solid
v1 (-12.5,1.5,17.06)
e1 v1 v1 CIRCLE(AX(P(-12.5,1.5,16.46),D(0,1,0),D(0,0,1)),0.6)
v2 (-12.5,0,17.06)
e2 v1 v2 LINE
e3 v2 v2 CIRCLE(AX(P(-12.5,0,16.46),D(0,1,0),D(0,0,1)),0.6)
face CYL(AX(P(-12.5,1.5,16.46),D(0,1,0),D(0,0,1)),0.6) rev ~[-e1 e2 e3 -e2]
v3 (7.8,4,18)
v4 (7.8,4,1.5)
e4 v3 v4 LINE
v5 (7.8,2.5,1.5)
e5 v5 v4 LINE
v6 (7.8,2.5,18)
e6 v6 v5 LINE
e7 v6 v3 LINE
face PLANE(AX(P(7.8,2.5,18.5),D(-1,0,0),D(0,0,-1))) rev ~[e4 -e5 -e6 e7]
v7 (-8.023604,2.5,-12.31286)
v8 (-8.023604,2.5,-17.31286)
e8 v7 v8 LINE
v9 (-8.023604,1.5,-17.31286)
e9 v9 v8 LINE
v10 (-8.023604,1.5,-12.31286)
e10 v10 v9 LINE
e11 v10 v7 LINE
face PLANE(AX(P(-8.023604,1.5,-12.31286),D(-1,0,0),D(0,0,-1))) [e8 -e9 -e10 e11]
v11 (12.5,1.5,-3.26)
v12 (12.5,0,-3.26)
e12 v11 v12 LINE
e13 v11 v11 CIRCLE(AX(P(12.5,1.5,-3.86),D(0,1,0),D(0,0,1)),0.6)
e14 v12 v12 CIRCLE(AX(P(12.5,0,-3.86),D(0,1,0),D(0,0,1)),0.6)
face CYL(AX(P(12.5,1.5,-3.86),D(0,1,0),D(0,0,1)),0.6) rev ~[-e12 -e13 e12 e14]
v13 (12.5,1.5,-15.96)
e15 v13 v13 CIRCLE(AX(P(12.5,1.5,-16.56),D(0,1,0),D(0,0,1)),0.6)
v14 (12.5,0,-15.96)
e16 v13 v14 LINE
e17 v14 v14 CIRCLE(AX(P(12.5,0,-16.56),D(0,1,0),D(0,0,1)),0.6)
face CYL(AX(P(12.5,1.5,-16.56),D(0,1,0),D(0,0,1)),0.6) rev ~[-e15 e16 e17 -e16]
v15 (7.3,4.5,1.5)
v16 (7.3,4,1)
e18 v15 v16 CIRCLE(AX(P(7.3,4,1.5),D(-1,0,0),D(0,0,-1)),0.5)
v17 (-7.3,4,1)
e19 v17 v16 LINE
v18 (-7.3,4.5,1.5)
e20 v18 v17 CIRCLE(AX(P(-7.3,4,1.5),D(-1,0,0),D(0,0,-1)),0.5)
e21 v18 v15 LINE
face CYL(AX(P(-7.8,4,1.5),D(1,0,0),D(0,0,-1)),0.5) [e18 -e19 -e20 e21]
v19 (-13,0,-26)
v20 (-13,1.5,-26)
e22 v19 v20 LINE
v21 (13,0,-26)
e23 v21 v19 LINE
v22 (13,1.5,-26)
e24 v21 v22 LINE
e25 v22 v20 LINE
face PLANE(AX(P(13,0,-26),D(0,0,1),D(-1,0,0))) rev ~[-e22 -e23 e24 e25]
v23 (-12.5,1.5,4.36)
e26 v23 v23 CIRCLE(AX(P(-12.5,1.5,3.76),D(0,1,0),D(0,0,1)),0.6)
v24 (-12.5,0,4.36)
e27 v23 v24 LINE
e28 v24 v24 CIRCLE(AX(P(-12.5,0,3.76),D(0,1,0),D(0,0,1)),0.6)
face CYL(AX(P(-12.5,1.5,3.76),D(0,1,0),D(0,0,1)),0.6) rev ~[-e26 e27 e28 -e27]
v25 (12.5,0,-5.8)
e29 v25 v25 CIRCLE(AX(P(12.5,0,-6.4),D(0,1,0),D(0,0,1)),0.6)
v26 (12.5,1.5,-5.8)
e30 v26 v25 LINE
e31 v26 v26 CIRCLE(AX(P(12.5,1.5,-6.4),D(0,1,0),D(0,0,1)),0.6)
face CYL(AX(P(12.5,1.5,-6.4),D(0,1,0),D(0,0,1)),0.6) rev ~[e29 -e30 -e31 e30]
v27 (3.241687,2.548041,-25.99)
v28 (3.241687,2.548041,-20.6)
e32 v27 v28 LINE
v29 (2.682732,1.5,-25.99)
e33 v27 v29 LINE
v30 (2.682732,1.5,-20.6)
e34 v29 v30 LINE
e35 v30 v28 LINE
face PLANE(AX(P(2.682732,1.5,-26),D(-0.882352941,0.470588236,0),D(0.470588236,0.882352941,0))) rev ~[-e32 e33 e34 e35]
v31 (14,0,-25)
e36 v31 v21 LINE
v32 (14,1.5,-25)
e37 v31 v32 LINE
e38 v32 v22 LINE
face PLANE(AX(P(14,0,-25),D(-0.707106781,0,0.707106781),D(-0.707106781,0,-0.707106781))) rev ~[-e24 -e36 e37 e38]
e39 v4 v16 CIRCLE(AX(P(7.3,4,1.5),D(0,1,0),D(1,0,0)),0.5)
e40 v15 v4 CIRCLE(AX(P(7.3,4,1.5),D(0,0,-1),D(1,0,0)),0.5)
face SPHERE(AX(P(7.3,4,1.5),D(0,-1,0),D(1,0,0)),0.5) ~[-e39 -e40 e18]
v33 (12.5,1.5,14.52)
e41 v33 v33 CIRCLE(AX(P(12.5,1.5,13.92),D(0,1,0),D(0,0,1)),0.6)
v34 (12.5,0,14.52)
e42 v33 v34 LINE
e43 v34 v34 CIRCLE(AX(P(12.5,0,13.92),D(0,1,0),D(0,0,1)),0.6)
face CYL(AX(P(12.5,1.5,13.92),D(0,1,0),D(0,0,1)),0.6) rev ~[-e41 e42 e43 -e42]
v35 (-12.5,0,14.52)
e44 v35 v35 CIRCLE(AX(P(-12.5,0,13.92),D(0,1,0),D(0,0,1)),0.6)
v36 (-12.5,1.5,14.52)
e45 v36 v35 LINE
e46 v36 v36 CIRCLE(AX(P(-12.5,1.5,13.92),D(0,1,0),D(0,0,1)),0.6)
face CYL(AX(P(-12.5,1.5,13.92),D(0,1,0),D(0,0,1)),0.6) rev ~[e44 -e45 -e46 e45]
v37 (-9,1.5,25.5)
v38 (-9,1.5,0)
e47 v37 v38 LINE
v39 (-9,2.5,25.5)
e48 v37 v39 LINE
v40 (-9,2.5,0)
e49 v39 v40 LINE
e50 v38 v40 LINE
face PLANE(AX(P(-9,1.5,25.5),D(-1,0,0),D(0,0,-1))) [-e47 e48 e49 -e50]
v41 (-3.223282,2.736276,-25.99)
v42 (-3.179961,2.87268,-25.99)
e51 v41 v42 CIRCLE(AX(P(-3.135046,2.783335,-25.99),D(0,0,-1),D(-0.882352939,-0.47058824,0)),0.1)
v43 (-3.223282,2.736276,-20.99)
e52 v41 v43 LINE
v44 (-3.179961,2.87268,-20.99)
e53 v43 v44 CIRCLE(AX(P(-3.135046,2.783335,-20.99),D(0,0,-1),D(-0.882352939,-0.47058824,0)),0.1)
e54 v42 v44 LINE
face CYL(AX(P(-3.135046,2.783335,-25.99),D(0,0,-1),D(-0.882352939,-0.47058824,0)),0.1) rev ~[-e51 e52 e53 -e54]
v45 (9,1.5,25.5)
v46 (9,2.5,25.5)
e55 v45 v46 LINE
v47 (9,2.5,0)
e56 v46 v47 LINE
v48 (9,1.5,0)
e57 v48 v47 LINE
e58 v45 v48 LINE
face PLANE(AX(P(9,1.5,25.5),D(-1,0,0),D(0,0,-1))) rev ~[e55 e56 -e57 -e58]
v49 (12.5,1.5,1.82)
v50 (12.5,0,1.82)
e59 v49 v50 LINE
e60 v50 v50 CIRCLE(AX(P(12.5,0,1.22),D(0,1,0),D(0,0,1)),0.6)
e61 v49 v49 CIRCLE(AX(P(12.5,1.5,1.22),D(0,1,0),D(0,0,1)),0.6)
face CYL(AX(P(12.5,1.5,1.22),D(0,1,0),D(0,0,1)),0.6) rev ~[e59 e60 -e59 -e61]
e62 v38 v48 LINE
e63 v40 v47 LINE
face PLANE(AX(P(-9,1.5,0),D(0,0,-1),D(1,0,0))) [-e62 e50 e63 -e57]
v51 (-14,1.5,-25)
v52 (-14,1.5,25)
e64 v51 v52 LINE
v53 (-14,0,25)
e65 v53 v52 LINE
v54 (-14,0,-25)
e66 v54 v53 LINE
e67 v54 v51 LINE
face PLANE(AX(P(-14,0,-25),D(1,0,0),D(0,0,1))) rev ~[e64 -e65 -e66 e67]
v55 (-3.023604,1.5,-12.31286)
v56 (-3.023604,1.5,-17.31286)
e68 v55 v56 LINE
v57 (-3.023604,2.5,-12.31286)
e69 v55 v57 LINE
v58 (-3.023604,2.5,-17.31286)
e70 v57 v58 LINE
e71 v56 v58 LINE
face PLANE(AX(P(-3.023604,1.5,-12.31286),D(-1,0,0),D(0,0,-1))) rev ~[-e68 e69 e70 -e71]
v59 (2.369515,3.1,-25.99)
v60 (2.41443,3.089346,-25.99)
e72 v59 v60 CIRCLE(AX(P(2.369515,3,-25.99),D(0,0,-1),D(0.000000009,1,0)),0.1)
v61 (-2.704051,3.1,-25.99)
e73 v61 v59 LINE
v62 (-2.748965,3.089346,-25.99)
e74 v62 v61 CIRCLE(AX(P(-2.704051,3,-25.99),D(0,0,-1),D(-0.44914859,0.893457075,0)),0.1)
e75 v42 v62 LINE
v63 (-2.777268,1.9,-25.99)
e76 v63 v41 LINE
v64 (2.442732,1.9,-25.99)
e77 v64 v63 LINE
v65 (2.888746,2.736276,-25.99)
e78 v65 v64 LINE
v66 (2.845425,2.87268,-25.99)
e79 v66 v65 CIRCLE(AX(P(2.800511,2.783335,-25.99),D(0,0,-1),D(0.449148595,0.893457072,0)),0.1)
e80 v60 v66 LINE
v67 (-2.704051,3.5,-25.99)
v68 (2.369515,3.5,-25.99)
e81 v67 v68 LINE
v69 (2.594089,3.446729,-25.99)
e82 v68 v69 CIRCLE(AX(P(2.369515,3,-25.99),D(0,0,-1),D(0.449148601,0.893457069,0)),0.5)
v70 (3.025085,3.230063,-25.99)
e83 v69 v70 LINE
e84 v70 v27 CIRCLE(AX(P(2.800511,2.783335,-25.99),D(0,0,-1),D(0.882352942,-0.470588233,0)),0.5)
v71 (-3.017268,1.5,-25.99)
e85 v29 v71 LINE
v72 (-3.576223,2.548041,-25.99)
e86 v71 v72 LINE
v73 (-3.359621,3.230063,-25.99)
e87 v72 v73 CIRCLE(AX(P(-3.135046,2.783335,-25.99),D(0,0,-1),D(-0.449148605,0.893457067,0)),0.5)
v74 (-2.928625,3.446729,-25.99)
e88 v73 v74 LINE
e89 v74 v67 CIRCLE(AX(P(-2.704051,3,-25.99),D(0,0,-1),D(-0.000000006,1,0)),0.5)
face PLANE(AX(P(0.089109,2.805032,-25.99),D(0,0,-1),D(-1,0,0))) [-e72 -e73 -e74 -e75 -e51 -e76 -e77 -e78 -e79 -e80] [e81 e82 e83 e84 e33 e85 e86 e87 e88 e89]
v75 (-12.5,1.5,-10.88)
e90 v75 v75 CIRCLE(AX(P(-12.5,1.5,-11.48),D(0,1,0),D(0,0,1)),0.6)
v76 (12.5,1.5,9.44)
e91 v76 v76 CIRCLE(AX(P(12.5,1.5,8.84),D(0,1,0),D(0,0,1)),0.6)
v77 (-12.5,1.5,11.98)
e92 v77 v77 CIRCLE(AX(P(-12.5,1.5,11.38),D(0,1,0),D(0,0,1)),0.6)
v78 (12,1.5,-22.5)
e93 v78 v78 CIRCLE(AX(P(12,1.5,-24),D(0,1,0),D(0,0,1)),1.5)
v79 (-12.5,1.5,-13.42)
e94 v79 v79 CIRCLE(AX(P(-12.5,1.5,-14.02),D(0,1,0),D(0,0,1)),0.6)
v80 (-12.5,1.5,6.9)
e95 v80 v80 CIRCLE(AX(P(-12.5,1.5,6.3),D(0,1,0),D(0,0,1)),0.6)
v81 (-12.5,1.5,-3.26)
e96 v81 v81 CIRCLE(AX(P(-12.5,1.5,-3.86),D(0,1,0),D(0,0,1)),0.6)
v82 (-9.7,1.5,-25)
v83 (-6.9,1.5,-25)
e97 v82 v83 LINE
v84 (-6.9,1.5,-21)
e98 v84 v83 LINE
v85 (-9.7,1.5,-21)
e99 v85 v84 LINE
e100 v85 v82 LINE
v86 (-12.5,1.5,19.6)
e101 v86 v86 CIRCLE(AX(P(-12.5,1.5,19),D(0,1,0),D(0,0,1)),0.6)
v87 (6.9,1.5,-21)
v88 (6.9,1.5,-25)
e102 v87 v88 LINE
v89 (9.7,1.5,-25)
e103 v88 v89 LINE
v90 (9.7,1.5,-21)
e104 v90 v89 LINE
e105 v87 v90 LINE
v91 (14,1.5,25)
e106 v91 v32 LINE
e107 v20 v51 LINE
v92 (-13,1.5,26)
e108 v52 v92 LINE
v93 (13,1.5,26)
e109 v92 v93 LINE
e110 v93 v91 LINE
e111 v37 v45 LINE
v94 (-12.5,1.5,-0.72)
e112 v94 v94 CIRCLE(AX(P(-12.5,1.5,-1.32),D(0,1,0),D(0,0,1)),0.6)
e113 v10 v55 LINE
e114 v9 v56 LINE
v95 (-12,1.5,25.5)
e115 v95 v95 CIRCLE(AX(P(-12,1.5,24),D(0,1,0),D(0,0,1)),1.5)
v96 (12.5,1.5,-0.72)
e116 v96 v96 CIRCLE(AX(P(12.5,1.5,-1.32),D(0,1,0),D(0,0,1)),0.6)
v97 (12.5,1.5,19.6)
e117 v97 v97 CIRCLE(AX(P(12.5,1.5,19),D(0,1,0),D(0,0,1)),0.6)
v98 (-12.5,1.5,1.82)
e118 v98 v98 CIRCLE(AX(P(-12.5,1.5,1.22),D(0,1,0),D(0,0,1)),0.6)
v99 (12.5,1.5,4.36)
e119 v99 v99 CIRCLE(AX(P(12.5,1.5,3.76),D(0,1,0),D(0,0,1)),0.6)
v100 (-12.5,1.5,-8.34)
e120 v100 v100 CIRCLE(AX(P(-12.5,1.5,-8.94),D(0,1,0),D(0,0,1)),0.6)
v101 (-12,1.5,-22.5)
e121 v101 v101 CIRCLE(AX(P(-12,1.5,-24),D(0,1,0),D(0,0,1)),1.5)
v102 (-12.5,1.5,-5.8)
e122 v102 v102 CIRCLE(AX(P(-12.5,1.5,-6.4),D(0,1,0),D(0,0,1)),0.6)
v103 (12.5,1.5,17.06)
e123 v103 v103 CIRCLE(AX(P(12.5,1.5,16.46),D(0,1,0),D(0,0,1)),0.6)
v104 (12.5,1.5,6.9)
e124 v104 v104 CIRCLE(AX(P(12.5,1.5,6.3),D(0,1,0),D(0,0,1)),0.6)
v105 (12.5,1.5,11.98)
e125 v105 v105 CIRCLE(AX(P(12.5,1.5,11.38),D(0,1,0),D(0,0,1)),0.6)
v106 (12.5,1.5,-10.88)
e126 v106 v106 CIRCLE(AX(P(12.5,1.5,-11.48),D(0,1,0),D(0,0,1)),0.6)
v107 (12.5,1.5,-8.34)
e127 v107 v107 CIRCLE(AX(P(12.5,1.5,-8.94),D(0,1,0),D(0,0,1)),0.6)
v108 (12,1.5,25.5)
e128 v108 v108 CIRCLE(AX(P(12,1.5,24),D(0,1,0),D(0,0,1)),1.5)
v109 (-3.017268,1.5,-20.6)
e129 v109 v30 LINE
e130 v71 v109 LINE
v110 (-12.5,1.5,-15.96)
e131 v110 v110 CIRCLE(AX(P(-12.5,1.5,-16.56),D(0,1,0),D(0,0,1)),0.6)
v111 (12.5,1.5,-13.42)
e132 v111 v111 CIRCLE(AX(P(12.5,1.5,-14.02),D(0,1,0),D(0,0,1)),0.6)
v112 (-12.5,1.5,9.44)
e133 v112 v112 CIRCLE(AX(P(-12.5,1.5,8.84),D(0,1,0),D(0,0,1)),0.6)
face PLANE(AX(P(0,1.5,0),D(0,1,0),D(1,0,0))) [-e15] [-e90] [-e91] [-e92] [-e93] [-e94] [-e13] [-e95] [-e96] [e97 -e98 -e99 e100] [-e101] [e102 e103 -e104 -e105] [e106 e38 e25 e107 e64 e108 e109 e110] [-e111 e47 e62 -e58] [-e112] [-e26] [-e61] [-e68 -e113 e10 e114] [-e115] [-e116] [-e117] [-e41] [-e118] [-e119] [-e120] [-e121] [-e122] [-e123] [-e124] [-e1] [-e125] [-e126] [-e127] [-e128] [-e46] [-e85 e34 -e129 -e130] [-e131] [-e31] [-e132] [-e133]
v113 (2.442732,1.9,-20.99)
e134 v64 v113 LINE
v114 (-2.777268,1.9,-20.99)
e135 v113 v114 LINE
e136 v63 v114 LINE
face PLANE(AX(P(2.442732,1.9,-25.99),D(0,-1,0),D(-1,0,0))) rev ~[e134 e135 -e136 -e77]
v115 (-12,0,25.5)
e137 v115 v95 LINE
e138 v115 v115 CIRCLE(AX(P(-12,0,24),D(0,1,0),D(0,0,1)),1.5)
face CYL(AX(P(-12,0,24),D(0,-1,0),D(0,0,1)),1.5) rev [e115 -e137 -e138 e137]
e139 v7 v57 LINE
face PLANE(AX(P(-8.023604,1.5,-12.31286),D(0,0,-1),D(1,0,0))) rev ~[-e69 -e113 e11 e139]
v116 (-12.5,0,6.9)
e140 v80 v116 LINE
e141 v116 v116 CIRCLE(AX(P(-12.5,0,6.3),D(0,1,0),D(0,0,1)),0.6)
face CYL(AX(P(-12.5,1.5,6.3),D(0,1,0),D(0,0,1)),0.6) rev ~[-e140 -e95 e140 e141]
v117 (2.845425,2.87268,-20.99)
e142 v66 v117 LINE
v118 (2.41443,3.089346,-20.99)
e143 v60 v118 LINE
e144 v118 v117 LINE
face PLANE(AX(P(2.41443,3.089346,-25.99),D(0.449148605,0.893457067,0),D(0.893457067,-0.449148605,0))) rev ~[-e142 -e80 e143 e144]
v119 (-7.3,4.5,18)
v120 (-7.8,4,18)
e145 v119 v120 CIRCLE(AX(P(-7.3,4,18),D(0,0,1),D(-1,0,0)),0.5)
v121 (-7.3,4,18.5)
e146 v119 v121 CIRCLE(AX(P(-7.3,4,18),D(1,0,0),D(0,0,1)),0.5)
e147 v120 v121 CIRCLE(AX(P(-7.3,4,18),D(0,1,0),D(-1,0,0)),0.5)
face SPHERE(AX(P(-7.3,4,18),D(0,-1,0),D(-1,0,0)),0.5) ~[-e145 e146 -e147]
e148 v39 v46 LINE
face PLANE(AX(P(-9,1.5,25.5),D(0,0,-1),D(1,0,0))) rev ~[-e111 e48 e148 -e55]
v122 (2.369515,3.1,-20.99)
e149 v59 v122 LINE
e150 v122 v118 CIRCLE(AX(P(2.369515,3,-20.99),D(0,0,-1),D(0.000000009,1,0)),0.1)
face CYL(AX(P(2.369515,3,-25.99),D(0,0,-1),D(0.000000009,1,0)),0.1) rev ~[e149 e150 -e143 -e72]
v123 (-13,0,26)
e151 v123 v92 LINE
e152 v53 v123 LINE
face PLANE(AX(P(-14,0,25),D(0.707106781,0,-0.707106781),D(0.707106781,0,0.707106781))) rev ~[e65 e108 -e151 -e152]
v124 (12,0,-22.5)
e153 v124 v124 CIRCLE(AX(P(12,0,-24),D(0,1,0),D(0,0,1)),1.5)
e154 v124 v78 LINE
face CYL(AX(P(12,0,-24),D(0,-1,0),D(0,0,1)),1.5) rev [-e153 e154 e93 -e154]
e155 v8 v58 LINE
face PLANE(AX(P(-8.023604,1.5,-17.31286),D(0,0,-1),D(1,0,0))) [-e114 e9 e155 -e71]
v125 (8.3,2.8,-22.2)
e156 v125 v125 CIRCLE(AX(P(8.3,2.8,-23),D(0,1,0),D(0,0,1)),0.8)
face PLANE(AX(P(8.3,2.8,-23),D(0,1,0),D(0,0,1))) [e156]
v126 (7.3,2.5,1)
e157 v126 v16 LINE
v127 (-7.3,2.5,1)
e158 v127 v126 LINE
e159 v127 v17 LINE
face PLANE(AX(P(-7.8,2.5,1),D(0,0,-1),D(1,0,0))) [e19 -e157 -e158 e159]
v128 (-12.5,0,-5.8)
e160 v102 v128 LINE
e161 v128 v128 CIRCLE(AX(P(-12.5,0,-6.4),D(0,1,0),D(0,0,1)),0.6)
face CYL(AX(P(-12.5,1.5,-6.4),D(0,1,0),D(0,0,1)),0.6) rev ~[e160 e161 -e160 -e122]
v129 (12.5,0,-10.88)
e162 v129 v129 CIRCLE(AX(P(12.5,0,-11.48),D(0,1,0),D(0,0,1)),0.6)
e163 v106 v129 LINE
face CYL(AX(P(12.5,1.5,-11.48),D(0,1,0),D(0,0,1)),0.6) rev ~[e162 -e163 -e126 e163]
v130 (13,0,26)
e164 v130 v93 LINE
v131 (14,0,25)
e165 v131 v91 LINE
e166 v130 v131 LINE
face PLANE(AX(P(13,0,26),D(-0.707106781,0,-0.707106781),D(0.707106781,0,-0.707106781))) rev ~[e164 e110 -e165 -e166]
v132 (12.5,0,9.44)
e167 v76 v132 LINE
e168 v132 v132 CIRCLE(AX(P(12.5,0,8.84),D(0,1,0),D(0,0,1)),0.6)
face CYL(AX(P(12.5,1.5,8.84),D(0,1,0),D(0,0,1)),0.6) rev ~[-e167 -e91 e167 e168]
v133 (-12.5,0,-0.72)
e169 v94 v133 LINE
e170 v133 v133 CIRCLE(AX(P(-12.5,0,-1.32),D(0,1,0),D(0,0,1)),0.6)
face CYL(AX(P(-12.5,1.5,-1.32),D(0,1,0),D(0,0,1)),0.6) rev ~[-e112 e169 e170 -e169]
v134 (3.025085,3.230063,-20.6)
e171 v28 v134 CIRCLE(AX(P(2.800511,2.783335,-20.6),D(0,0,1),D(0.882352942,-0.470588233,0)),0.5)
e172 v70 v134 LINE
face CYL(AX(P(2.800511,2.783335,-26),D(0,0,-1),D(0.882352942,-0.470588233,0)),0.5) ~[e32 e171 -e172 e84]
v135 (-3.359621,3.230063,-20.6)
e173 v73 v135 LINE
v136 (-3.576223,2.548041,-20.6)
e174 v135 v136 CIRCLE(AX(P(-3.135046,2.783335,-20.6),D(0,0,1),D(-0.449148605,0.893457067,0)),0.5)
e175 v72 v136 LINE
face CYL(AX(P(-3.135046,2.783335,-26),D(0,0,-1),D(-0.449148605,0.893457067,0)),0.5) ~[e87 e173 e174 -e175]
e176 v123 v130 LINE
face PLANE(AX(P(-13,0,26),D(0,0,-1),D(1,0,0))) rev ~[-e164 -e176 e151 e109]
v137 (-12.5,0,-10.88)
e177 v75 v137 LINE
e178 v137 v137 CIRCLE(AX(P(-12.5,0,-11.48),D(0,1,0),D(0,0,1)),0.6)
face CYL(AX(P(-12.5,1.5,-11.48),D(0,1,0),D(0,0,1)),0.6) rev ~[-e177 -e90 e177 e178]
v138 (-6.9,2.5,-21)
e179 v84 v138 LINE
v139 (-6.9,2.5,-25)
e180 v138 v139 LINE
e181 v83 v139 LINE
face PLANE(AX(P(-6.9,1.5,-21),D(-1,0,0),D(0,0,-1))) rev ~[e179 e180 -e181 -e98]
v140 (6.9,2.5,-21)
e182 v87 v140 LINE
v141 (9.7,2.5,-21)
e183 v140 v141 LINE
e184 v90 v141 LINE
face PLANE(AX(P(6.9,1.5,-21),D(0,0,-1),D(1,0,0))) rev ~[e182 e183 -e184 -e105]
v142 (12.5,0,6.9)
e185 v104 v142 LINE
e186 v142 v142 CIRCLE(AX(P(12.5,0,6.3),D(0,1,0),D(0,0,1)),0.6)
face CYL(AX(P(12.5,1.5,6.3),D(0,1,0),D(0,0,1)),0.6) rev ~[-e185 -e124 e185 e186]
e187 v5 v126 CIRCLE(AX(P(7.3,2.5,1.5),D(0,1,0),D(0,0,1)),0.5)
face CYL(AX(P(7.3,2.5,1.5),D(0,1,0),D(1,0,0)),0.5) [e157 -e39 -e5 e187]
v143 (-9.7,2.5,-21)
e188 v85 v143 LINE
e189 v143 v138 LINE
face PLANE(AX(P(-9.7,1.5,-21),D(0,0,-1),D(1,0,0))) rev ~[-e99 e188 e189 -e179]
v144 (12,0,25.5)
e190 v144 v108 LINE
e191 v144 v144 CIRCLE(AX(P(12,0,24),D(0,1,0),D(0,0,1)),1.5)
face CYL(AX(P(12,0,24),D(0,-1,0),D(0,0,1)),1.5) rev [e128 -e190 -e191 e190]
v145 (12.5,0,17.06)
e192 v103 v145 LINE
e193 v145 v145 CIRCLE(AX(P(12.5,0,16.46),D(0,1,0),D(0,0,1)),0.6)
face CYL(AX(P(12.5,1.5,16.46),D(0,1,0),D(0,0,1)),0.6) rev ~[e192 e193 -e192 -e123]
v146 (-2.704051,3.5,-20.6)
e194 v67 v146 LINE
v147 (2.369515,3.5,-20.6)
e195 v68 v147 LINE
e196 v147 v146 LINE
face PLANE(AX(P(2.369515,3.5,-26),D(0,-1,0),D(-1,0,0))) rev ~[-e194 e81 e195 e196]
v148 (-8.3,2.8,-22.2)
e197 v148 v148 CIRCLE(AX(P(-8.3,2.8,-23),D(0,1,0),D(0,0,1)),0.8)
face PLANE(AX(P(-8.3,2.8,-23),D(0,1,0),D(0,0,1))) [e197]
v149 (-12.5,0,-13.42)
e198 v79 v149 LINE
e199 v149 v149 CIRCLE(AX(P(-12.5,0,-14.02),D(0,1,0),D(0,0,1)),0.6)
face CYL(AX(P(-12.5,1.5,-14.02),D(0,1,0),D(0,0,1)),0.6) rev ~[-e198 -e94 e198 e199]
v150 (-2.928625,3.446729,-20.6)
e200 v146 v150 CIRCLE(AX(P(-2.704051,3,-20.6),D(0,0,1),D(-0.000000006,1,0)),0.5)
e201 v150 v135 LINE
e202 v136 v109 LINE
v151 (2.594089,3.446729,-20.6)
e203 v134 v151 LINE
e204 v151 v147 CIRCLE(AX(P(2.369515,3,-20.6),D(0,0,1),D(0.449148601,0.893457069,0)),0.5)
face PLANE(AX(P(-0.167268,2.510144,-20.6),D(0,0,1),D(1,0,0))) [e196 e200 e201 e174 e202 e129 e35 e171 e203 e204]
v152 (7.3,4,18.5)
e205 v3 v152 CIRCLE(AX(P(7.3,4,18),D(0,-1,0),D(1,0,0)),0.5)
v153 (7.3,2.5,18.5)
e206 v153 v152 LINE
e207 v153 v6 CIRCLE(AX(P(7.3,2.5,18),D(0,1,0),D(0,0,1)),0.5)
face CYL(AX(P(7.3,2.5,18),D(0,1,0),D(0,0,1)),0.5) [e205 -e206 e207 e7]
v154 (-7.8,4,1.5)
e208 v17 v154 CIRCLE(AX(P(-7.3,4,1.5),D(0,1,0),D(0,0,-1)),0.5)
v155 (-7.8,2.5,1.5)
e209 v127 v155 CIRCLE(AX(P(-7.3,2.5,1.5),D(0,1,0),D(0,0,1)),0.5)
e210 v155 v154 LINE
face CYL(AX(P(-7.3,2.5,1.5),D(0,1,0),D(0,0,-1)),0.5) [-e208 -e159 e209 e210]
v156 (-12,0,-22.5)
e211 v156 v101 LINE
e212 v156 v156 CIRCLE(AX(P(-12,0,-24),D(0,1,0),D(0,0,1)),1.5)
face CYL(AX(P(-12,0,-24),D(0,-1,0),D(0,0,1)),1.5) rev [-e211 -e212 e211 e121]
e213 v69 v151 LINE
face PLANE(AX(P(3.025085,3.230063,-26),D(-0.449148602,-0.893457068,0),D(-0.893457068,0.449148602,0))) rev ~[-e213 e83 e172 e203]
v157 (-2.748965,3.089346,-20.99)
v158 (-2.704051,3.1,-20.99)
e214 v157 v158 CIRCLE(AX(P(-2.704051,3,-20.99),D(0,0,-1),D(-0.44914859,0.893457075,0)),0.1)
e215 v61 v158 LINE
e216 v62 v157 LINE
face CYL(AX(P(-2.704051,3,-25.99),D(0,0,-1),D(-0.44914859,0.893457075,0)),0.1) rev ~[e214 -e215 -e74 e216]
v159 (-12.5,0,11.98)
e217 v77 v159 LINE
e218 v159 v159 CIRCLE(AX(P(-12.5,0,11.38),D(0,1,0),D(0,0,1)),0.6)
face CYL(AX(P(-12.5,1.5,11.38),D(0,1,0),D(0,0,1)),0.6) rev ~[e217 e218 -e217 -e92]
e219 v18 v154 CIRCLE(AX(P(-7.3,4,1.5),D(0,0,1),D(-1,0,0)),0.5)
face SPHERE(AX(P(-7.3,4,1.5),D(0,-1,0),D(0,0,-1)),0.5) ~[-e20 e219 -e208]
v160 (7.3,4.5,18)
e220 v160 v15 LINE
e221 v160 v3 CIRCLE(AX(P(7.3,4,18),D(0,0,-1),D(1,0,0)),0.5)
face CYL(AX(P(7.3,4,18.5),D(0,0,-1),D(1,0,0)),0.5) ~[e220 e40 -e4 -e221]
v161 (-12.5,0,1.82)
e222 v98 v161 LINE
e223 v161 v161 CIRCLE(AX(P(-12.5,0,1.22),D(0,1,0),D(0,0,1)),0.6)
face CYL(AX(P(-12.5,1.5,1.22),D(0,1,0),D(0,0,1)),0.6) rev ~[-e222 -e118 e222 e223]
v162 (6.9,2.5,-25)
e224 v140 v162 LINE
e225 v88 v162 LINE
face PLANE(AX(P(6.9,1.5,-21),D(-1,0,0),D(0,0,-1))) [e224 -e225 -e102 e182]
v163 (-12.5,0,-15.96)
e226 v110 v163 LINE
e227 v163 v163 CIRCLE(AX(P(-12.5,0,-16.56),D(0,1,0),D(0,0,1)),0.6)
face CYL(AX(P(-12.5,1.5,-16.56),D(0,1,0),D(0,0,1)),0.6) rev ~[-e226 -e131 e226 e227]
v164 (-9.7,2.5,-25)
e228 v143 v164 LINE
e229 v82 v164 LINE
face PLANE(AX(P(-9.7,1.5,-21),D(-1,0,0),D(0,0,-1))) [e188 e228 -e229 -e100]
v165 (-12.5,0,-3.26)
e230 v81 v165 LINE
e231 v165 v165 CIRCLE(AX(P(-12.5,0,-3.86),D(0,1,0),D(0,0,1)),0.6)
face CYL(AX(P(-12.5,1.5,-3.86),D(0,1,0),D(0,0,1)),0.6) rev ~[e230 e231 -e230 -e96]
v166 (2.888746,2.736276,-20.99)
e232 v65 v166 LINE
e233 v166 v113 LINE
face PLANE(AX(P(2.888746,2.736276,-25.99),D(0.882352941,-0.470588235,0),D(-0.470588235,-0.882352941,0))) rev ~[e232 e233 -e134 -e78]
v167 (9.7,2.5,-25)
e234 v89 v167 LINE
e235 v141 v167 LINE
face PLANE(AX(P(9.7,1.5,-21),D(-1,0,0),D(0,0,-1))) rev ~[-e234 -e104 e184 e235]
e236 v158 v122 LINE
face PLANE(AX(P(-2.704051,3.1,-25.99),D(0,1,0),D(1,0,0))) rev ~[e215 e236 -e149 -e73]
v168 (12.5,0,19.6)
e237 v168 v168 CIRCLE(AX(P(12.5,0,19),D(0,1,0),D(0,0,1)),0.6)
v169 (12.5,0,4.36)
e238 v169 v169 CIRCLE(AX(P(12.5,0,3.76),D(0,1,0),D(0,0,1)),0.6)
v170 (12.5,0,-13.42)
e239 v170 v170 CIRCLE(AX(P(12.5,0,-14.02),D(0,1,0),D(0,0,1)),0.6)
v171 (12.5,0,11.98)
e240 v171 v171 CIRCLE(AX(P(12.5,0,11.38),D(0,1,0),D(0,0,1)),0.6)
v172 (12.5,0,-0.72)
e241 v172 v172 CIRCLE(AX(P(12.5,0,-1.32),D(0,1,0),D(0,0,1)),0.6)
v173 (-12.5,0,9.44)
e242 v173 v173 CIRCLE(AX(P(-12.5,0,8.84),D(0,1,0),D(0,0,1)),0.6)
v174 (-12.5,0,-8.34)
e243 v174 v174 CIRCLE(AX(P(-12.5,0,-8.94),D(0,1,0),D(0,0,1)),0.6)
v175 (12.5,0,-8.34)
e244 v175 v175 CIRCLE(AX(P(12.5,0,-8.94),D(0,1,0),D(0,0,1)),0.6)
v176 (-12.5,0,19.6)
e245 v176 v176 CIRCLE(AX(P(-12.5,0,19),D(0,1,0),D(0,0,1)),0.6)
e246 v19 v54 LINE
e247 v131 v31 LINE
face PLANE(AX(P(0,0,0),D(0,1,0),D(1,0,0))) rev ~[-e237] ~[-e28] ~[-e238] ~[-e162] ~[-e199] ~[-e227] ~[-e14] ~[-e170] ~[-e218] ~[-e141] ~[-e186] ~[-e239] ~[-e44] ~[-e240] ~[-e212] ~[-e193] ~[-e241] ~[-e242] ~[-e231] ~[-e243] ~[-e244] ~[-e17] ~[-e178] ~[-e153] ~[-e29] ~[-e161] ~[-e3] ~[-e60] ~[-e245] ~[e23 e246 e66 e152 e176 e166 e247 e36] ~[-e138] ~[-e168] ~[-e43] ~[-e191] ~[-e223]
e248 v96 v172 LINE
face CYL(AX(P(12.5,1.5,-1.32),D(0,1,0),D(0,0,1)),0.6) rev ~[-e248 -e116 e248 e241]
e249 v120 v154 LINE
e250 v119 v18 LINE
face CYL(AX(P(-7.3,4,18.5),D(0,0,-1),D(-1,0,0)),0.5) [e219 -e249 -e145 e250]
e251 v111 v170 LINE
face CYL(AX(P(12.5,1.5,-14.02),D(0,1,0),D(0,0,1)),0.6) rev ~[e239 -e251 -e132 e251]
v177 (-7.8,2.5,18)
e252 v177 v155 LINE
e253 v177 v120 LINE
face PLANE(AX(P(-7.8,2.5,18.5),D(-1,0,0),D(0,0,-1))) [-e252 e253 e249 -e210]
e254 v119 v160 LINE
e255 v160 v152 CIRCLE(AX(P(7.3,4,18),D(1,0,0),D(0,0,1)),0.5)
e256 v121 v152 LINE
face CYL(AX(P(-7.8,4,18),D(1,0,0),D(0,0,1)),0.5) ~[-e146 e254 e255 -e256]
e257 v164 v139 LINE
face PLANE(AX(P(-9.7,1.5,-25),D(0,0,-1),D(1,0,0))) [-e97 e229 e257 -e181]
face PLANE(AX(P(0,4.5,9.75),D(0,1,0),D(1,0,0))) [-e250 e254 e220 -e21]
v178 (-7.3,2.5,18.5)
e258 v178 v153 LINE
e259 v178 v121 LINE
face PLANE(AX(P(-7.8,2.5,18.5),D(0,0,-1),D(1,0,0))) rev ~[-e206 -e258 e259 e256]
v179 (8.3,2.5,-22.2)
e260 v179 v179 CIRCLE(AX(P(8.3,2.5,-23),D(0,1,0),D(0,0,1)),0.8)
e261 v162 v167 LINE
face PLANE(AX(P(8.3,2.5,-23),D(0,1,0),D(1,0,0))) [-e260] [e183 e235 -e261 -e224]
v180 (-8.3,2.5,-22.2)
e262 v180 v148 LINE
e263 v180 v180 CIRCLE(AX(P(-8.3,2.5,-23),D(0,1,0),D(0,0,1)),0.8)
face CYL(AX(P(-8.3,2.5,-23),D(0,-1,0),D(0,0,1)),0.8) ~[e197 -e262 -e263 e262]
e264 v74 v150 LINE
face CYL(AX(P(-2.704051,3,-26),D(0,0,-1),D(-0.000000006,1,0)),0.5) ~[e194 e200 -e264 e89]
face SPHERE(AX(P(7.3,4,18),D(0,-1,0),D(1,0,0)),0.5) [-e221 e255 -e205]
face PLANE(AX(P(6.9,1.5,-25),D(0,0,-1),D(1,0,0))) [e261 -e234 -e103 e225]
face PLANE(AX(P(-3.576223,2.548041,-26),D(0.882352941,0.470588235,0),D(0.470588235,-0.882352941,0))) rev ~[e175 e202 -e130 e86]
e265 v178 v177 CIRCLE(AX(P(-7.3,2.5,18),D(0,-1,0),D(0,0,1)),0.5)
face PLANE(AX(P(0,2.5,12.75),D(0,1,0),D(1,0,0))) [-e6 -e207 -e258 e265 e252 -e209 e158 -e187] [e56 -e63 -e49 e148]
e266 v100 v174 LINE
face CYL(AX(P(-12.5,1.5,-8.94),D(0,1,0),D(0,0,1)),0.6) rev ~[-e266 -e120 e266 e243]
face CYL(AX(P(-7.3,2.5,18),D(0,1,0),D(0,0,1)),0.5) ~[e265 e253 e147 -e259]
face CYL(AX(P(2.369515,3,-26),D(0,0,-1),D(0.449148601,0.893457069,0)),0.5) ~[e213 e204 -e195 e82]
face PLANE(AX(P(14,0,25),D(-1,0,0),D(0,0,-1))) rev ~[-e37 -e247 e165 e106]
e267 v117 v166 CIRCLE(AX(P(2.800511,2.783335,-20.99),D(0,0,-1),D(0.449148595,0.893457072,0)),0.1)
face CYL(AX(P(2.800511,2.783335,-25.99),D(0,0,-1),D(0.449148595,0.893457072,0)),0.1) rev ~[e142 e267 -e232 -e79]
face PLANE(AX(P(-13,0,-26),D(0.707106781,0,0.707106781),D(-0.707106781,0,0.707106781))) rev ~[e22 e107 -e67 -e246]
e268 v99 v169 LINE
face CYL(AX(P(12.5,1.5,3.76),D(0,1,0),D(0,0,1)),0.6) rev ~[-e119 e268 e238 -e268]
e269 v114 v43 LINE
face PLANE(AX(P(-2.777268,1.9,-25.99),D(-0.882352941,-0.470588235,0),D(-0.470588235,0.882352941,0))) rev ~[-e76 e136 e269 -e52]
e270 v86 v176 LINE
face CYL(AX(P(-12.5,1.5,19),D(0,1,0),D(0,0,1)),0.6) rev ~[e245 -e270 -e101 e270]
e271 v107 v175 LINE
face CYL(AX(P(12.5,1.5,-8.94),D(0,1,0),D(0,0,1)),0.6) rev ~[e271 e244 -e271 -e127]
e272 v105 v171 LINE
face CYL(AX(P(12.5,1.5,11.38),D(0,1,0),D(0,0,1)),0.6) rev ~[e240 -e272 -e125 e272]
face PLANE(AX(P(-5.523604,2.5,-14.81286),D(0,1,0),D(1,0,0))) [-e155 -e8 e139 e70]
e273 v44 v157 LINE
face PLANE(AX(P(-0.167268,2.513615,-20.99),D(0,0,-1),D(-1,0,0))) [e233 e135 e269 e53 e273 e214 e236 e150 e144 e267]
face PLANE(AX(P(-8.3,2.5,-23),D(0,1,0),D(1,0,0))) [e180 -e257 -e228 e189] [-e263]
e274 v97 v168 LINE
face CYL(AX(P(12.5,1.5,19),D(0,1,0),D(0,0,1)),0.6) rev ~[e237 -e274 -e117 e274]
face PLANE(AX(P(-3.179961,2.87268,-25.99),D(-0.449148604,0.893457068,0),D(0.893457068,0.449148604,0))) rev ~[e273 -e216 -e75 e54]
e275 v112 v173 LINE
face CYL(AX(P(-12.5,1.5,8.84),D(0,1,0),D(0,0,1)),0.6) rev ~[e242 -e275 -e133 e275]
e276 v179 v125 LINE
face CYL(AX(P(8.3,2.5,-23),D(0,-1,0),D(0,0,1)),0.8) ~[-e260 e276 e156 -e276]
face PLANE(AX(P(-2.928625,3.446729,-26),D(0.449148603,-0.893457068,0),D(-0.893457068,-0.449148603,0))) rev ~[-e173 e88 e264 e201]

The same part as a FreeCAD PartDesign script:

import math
import FreeCAD as App
import Part
import Sketcher

V = App.Vector
Q = App.Units.Quantity


def edges_at(feature, points):
    """Names of the edges that pass closest to the given points."""
    edges = feature.Shape.Edges
    near = lambda p: min(range(len(edges)), key=lambda i: edges[i].distToShape(Part.Vertex(*p))[0])
    return sorted({f"Edge{near(p) + 1}" for p in points})

doc = App.newDocument("Part")
body = doc.addObject("PartDesign::Body", "Body")

sketch1 = body.newObject("Sketcher::SketchObject", "Sketch")
sketch1.AttachmentSupport = (doc.getObject("XZ_Plane"), [""])
sketch1.MapMode = "FlatFace"
sketch1.addGeometry([
    Part.LineSegment(V(-14, 25, 0), V(-13, 26, 0)),
    Part.LineSegment(V(-13, 26, 0), V(13, 26, 0)),
    Part.LineSegment(V(13, 26, 0), V(14, 25, 0)),
    Part.LineSegment(V(14, 25, 0), V(14, -25, 0)),
    Part.LineSegment(V(14, -25, 0), V(13, -26, 0)),
    Part.LineSegment(V(13, -26, 0), V(-13, -26, 0)),
    Part.LineSegment(V(-13, -26, 0), V(-14, -25, 0)),
    Part.LineSegment(V(-14, -25, 0), V(-14, 25, 0)),
    Part.Circle(V(-12, 24, 0), V(0, 0, 1), 1.5),
    Part.Circle(V(12, 24, 0), V(0, 0, 1), 1.5),
    Part.Circle(V(-12, -24, 0), V(0, 0, 1), 1.5),
    Part.Circle(V(12, -24, 0), V(0, 0, 1), 1.5),
], False)
sketch1.addConstraint([
    Sketcher.Constraint("Coincident", 0, 2, 1, 1),
    Sketcher.Constraint("Coincident", 1, 2, 2, 1),
    Sketcher.Constraint("Coincident", 2, 2, 3, 1),
    Sketcher.Constraint("Coincident", 3, 2, 4, 1),
    Sketcher.Constraint("Coincident", 4, 2, 5, 1),
    Sketcher.Constraint("Coincident", 5, 2, 6, 1),
    Sketcher.Constraint("Coincident", 6, 2, 7, 1),
    Sketcher.Constraint("Coincident", 7, 2, 0, 1),
    Sketcher.Constraint("Horizontal", 1),
    Sketcher.Constraint("Vertical", 3),
    Sketcher.Constraint("Horizontal", 5),
    Sketcher.Constraint("Vertical", 7),
    Sketcher.Constraint("Equal", 8, 9),
    Sketcher.Constraint("Equal", 9, 10),
    Sketcher.Constraint("Equal", 10, 11),
    Sketcher.Constraint("Symmetric", 9, 3, 10, 3, -1, 1),
    Sketcher.Constraint("Symmetric", 8, 3, 11, 3, -1, 1),
    Sketcher.Constraint("Symmetric", 0, 2, 4, 2, -1, 1),
    Sketcher.Constraint("Symmetric", 2, 2, 6, 2, -1, 1),
    Sketcher.Constraint("Symmetric", 8, 3, 9, 3, -2),
    Sketcher.Constraint("Perpendicular", 0, 2),
    Sketcher.Constraint("Perpendicular", 2, 4),
    Sketcher.Constraint("Perpendicular", 4, 6),
    Sketcher.Constraint("Horizontal", 3, 2, 6, 2),
    Sketcher.Constraint("Vertical", 1, 2, 4, 2),
    Sketcher.Constraint("Diameter", 8, Q("3 mm")),
    Sketcher.Constraint("DistanceX", 1, 1, 1, 2, Q("26 mm")),
    Sketcher.Constraint("DistanceY", 3, 2, 3, 1, Q("50 mm")),
    Sketcher.Constraint("DistanceX", 8, 3, -1, 1, Q("12 mm")),
    Sketcher.Constraint("DistanceY", -1, 1, 8, 3, Q("24 mm")),
    Sketcher.Constraint("DistanceY", -1, 1, 0, 2, Q("26 mm")),
])
pad1 = body.newObject("PartDesign::Pad", "Pad")
pad1.Profile = sketch1
pad1.Length = 1.5
pad1.Reversed = True

sketch2 = body.newObject("Sketcher::SketchObject", "Sketch001")
sketch2.AttachmentSupport = (doc.getObject("XZ_Plane"), [""])
sketch2.MapMode = "FlatFace"
sketch2.AttachmentOffset = App.Placement(V(0, 0, -1.5), App.Rotation())
sketch2.addGeometry([
    Part.LineSegment(V(-9, 0, 0), V(-9, 26, 0)),
    Part.LineSegment(V(-9, 26, 0), V(9, 26, 0)),
    Part.LineSegment(V(9, 26, 0), V(9, 0, 0)),
    Part.LineSegment(V(9, 0, 0), V(-9, 0, 0)),
], False)
sketch2.addConstraint([
    Sketcher.Constraint("Coincident", 0, 2, 1, 1),
    Sketcher.Constraint("Coincident", 1, 2, 2, 1),
    Sketcher.Constraint("Coincident", 2, 2, 3, 1),
    Sketcher.Constraint("Coincident", 3, 2, 0, 1),
    Sketcher.Constraint("Vertical", 0),
    Sketcher.Constraint("Horizontal", 1),
    Sketcher.Constraint("Vertical", 2),
    Sketcher.Constraint("Horizontal", 3),
    Sketcher.Constraint("Symmetric", 2, 2, 3, 2, -1, 1),
    Sketcher.Constraint("DistanceX", 1, 1, 1, 2, Q("18 mm")),
    Sketcher.Constraint("DistanceY", 0, 1, 0, 2, Q("25.5 mm")),
])
pad2 = body.newObject("PartDesign::Pad", "Pad001")
pad2.Profile = sketch2
pad2.Length = 1
pad2.Reversed = True

sketch3 = body.newObject("Sketcher::SketchObject", "Sketch002")
sketch3.AttachmentSupport = (doc.getObject("XZ_Plane"), [""])
sketch3.MapMode = "FlatFace"
sketch3.AttachmentOffset = App.Placement(V(0, 0, -2.5), App.Rotation())
sketch3.addGeometry([
    Part.LineSegment(V(-8, 1, 0), V(-8, 18, 0)),
    Part.LineSegment(V(-8, 18, 0), V(8, 18, 0)),
    Part.LineSegment(V(8, 18, 0), V(8, 1, 0)),
    Part.LineSegment(V(8, 1, 0), V(-8, 1, 0)),
], False)
sketch3.addConstraint([
    Sketcher.Constraint("Coincident", 0, 2, 1, 1),
    Sketcher.Constraint("Coincident", 1, 2, 2, 1),
    Sketcher.Constraint("Coincident", 2, 2, 3, 1),
    Sketcher.Constraint("Coincident", 3, 2, 0, 1),
    Sketcher.Constraint("Vertical", 0),
    Sketcher.Constraint("Horizontal", 1),
    Sketcher.Constraint("Vertical", 2),
    Sketcher.Constraint("Horizontal", 3),
    Sketcher.Constraint("DistanceX", 1, 1, 1, 2, Q("15.6 mm")),
    Sketcher.Constraint("DistanceY", 0, 1, 0, 2, Q("17.5 mm")),
    Sketcher.Constraint("DistanceY", -1, 1, 2, 2, Q("1 mm")),
    Sketcher.Constraint("DistanceX", 0, 2, -1, 1, Q("7.8 mm")),
])
pad3 = body.newObject("PartDesign::Pad", "Pad002")
pad3.Profile = sketch3
pad3.Length = 2
pad3.Reversed = True

sketch4 = body.newObject("Sketcher::SketchObject", "Sketch003")
sketch4.AttachmentSupport = (doc.getObject("XZ_Plane"), [""])
sketch4.MapMode = "FlatFace"
sketch4.AttachmentOffset = App.Placement(V(0, 0, -1.5), App.Rotation())
sketch4.addGeometry([
    Part.LineSegment(V(-8, -17.3, 0), V(-8, -12.3, 0)),
    Part.LineSegment(V(-8, -12.3, 0), V(-3, -12.3, 0)),
    Part.LineSegment(V(-3, -12.3, 0), V(-3, -17.3, 0)),
    Part.LineSegment(V(-3, -17.3, 0), V(-8, -17.3, 0)),
    Part.LineSegment(V(-9.7, -25, 0), V(-9.7, -21, 0)),
    Part.LineSegment(V(-9.7, -21, 0), V(-6.9, -21, 0)),
    Part.LineSegment(V(-6.9, -21, 0), V(-6.9, -25, 0)),
    Part.LineSegment(V(-6.9, -25, 0), V(-9.7, -25, 0)),
    Part.LineSegment(V(6.9, -25, 0), V(6.9, -21, 0)),
    Part.LineSegment(V(6.9, -21, 0), V(9.7, -21, 0)),
    Part.LineSegment(V(9.7, -21, 0), V(9.7, -25, 0)),
    Part.LineSegment(V(9.7, -25, 0), V(6.9, -25, 0)),
], False)
sketch4.addConstraint([
    Sketcher.Constraint("Coincident", 0, 2, 1, 1),
    Sketcher.Constraint("Coincident", 1, 2, 2, 1),
    Sketcher.Constraint("Coincident", 2, 2, 3, 1),
    Sketcher.Constraint("Coincident", 3, 2, 0, 1),
    Sketcher.Constraint("Coincident", 4, 2, 5, 1),
    Sketcher.Constraint("Coincident", 5, 2, 6, 1),
    Sketcher.Constraint("Coincident", 6, 2, 7, 1),
    Sketcher.Constraint("Coincident", 7, 2, 4, 1),
    Sketcher.Constraint("Coincident", 8, 2, 9, 1),
    Sketcher.Constraint("Coincident", 9, 2, 10, 1),
    Sketcher.Constraint("Coincident", 10, 2, 11, 1),
    Sketcher.Constraint("Coincident", 11, 2, 8, 1),
    Sketcher.Constraint("Vertical", 0),
    Sketcher.Constraint("Horizontal", 1),
    Sketcher.Constraint("Vertical", 2),
    Sketcher.Constraint("Horizontal", 3),
    Sketcher.Constraint("Vertical", 4),
    Sketcher.Constraint("Horizontal", 5),
    Sketcher.Constraint("Vertical", 6),
    Sketcher.Constraint("Horizontal", 7),
    Sketcher.Constraint("Vertical", 8),
    Sketcher.Constraint("Horizontal", 9),
    Sketcher.Constraint("Vertical", 10),
    Sketcher.Constraint("Horizontal", 11),
    Sketcher.Constraint("Symmetric", 5, 2, 8, 2, -2),
    Sketcher.Constraint("Symmetric", 7, 2, 10, 2, -2),
    Sketcher.Constraint("Equal", 3, 0),
    Sketcher.Constraint("DistanceX", 1, 1, 1, 2, Q("5 mm")),
    Sketcher.Constraint("DistanceY", 4, 1, 4, 2, Q("4 mm")),
    Sketcher.Constraint("DistanceX", 5, 1, 5, 2, Q("2.8 mm")),
    Sketcher.Constraint("DistanceY", 4, 2, -1, 1, Q("21 mm")),
    Sketcher.Constraint("DistanceX", 4, 2, -1, 1, Q("9.7 mm")),
    Sketcher.Constraint("DistanceY", 0, 2, -1, 1, Q("12.31286 mm")),
    Sketcher.Constraint("DistanceX", 0, 2, -1, 1, Q("8.023604 mm")),
])
pad4 = body.newObject("PartDesign::Pad", "Pad003")
pad4.Profile = sketch4
pad4.Length = 1
pad4.Reversed = True

sketch5 = body.newObject("Sketcher::SketchObject", "Sketch004")
sketch5.AttachmentSupport = (doc.getObject("XZ_Plane"), [""])
sketch5.MapMode = "FlatFace"
sketch5.AttachmentOffset = App.Placement(V(0, 0, -2.5), App.Rotation())
sketch5.addGeometry([
    Part.Circle(V(-8.3, -23, 0), V(0, 0, 1), 0.8),
    Part.Circle(V(8.3, -23, 0), V(0, 0, 1), 0.8),
], False)
sketch5.addConstraint([
    Sketcher.Constraint("Equal", 0, 1),
    Sketcher.Constraint("Symmetric", 0, 3, 1, 3, -2),
    Sketcher.Constraint("Diameter", 0, Q("1.6 mm")),
    Sketcher.Constraint("DistanceY", 0, 3, -1, 1, Q("23 mm")),
    Sketcher.Constraint("DistanceX", 0, 3, -1, 1, Q("8.3 mm")),
])
pad5 = body.newObject("PartDesign::Pad", "Pad004")
pad5.Profile = sketch5
pad5.Length = 0.3
pad5.Reversed = True

sketch6 = body.newObject("Sketcher::SketchObject", "Sketch005")
sketch6.AttachmentSupport = (doc.getObject("XY_Plane"), [""])
sketch6.MapMode = "FlatFace"
sketch6.AttachmentOffset = App.Placement(V(0, 0, -26), App.Rotation())
sketch6.addGeometry([
    Part.LineSegment(V(2.68, 1.5, 0), V(-3.02, 1.5, 0)),
    Part.LineSegment(V(-3.02, 1.5, 0), V(-3.58, 2.55, 0)),
    Part.ArcOfCircle(Part.Circle(V(-3.14, 2.78, 0), V(0, 0, 1), 0.5), math.radians(117), math.radians(208)),
    Part.LineSegment(V(-3.36, 3.23, 0), V(-2.93, 3.45, 0)),
    Part.ArcOfCircle(Part.Circle(V(-2.7, 3, 0), V(0, 0, 1), 0.5), math.radians(90), math.radians(117)),
    Part.LineSegment(V(-2.7, 3.5, 0), V(2.37, 3.5, 0)),
    Part.ArcOfCircle(Part.Circle(V(2.37, 3, 0), V(0, 0, 1), 0.5), math.radians(63), math.radians(90)),
    Part.LineSegment(V(2.59, 3.45, 0), V(3.03, 3.23, 0)),
    Part.ArcOfCircle(Part.Circle(V(2.8, 2.78, 0), V(0, 0, 1), 0.5), math.radians(-28), math.radians(63)),
    Part.LineSegment(V(3.24, 2.55, 0), V(2.68, 1.5, 0)),
], False)
sketch6.addConstraint([
    Sketcher.Constraint("Coincident", 0, 2, 1, 1),
    Sketcher.Constraint("Tangent", 1, 2, 2, 2),
    Sketcher.Constraint("Tangent", 2, 1, 3, 1),
    Sketcher.Constraint("Tangent", 3, 2, 4, 2),
    Sketcher.Constraint("Tangent", 4, 1, 5, 1),
    Sketcher.Constraint("Tangent", 5, 2, 6, 2),
    Sketcher.Constraint("Tangent", 6, 1, 7, 1),
    Sketcher.Constraint("Tangent", 7, 2, 8, 2),
    Sketcher.Constraint("Tangent", 8, 1, 9, 1),
    Sketcher.Constraint("Coincident", 9, 2, 0, 1),
    Sketcher.Constraint("Horizontal", 0),
    Sketcher.Constraint("Horizontal", 5),
    Sketcher.Constraint("Equal", 2, 4),
    Sketcher.Constraint("Equal", 4, 6),
    Sketcher.Constraint("Equal", 6, 8),
    Sketcher.Constraint("Horizontal", 2, 3, 8, 3),
    Sketcher.Constraint("Horizontal", 3, 2, 6, 1),
    Sketcher.Constraint("Horizontal", 1, 2, 8, 1),
    Sketcher.Constraint("Radius", 2, Q("0.5 mm")),
    Sketcher.Constraint("DistanceX", 0, 2, 0, 1, Q("5.7 mm")),
    Sketcher.Constraint("DistanceY", -1, 1, 4, 3, Q("3 mm")),
    Sketcher.Constraint("DistanceY", -1, 1, 0, 2, Q("1.5 mm")),
    Sketcher.Constraint("Distance", 1, Q("1.187779 mm")),
    Sketcher.Constraint("Distance", 3, Q("0.482391 mm")),
    Sketcher.Constraint("DistanceX", 5, 1, 5, 2, Q("5.073565 mm")),
    Sketcher.Constraint("DistanceX", 4, 3, -1, 1, Q("2.704051 mm")),
])
pad6 = body.newObject("PartDesign::Pad", "Pad005")
pad6.Profile = sketch6
pad6.Length = 5.4

sketch7 = body.newObject("Sketcher::SketchObject", "Sketch006")
sketch7.AttachmentSupport = (doc.getObject("XY_Plane"), [""])
sketch7.MapMode = "FlatFace"
sketch7.AttachmentOffset = App.Placement(V(0, 0, -26), App.Rotation())
sketch7.addGeometry([
    Part.LineSegment(V(3.9, 4.1, 0), V(3.9, 1.5, 0)),
    Part.LineSegment(V(3.9, 1.5, 0), V(-3.7, 1.5, 0)),
    Part.LineSegment(V(-3.7, 1.5, 0), V(-3.7, 4.1, 0)),
    Part.LineSegment(V(-3.7, 4.1, 0), V(3.9, 4.1, 0)),
], False)
sketch7.addConstraint([
    Sketcher.Constraint("Coincident", 0, 2, 1, 1),
    Sketcher.Constraint("Coincident", 1, 2, 2, 1),
    Sketcher.Constraint("Coincident", 2, 2, 3, 1),
    Sketcher.Constraint("Coincident", 3, 2, 0, 1),
    Sketcher.Constraint("Vertical", 0),
    Sketcher.Constraint("Horizontal", 1),
    Sketcher.Constraint("Vertical", 2),
    Sketcher.Constraint("Horizontal", 3),
    Sketcher.Constraint("DistanceY", -1, 1, 0, 2, Q("1.5 mm")),
    Sketcher.Constraint("DistanceX", 1, 2, 1, 1, Q("7.643028 mm")),
    Sketcher.Constraint("DistanceY", 0, 2, 0, 1, Q("2.610065 mm")),
    Sketcher.Constraint("DistanceX", -1, 1, 0, 2, Q("3.910623 mm")),
])
pocket1 = body.newObject("PartDesign::Pocket", "Pocket")
pocket1.Profile = sketch7
pocket1.Length = 0.01
pocket1.Reversed = True

sketch8 = body.newObject("Sketcher::SketchObject", "Sketch007")
sketch8.AttachmentSupport = (doc.getObject("XY_Plane"), [""])
sketch8.MapMode = "FlatFace"
sketch8.AttachmentOffset = App.Placement(V(0, 0, -25.99), App.Rotation())
sketch8.addGeometry([
    Part.LineSegment(V(-2.704, 3.1, 0), V(2.37, 3.1, 0)),
    Part.ArcOfCircle(Part.Circle(V(2.37, 3, 0), V(0, 0, 1), 0.1), math.radians(63), math.radians(90)),
    Part.LineSegment(V(2.414, 3.089, 0), V(2.845, 2.873, 0)),
    Part.ArcOfCircle(Part.Circle(V(2.801, 2.783, 0), V(0, 0, 1), 0.1), math.radians(-28), math.radians(63)),
    Part.LineSegment(V(2.889, 2.736, 0), V(2.443, 1.9, 0)),
    Part.LineSegment(V(2.443, 1.9, 0), V(-2.777, 1.9, 0)),
    Part.LineSegment(V(-2.777, 1.9, 0), V(-3.223, 2.736, 0)),
    Part.ArcOfCircle(Part.Circle(V(-3.135, 2.783, 0), V(0, 0, 1), 0.1), math.radians(117), math.radians(208)),
    Part.LineSegment(V(-3.18, 2.873, 0), V(-2.749, 3.089, 0)),
    Part.ArcOfCircle(Part.Circle(V(-2.704, 3, 0), V(0, 0, 1), 0.1), math.radians(90), math.radians(117)),
], False)
sketch8.addConstraint([
    Sketcher.Constraint("Tangent", 0, 2, 1, 2),
    Sketcher.Constraint("Tangent", 1, 1, 2, 1),
    Sketcher.Constraint("Tangent", 2, 2, 3, 2),
    Sketcher.Constraint("Tangent", 3, 1, 4, 1),
    Sketcher.Constraint("Coincident", 4, 2, 5, 1),
    Sketcher.Constraint("Coincident", 5, 2, 6, 1),
    Sketcher.Constraint("Tangent", 6, 2, 7, 2),
    Sketcher.Constraint("Tangent", 7, 1, 8, 1),
    Sketcher.Constraint("Tangent", 8, 2, 9, 2),
    Sketcher.Constraint("Tangent", 9, 1, 0, 1),
    Sketcher.Constraint("Horizontal", 0),
    Sketcher.Constraint("Horizontal", 5),
    Sketcher.Constraint("Equal", 1, 3),
    Sketcher.Constraint("Equal", 3, 7),
    Sketcher.Constraint("Equal", 7, 9),
    Sketcher.Constraint("Horizontal", 3, 3, 7, 3),
    Sketcher.Constraint("Horizontal", 3, 1, 6, 2),
    Sketcher.Constraint("Horizontal", 2, 2, 7, 1),
    Sketcher.Constraint("Radius", 1, Q("0.1 mm")),
    Sketcher.Constraint("DistanceY", -1, 1, 1, 3, Q("3 mm")),
    Sketcher.Constraint("DistanceX", 5, 2, 5, 1, Q("5.22 mm")),
    Sketcher.Constraint("DistanceY", -1, 1, 4, 2, Q("1.9 mm")),
    Sketcher.Constraint("Distance", 2, Q("0.482391 mm")),
    Sketcher.Constraint("Distance", 4, Q("0.947779 mm")),
    Sketcher.Constraint("DistanceX", 0, 1, 0, 2, Q("5.073565 mm")),
    Sketcher.Constraint("DistanceX", -1, 1, 3, 3, Q("2.800511 mm")),
])
pocket2 = body.newObject("PartDesign::Pocket", "Pocket001")
pocket2.Profile = sketch8
pocket2.Length = 5
pocket2.Reversed = True

sketch9 = body.newObject("Sketcher::SketchObject", "Sketch008")
sketch9.AttachmentSupport = (doc.getObject("XZ_Plane"), [""])
sketch9.MapMode = "FlatFace"
sketch9.AttachmentOffset = App.Placement(V(0, 0, -1.5), App.Rotation())
sketch9.addGeometry([
    Part.Circle(V(-12.5, -16.6, 0), V(0, 0, 1), 0.6),
    Part.Circle(V(-12.5, -14, 0), V(0, 0, 1), 0.6),
    Part.Circle(V(-12.5, -11.5, 0), V(0, 0, 1), 0.6),
    Part.Circle(V(-12.5, -8.9, 0), V(0, 0, 1), 0.6),
    Part.Circle(V(-12.5, -6.4, 0), V(0, 0, 1), 0.6),
    Part.Circle(V(-12.5, -3.9, 0), V(0, 0, 1), 0.6),
    Part.Circle(V(-12.5, -1.3, 0), V(0, 0, 1), 0.6),
    Part.Circle(V(-12.5, 1.2, 0), V(0, 0, 1), 0.6),
    Part.Circle(V(-12.5, 3.8, 0), V(0, 0, 1), 0.6),
    Part.Circle(V(-12.5, 6.3, 0), V(0, 0, 1), 0.6),
    Part.Circle(V(-12.5, 8.8, 0), V(0, 0, 1), 0.6),
    Part.Circle(V(-12.5, 11.4, 0), V(0, 0, 1), 0.6),
    Part.Circle(V(-12.5, 13.9, 0), V(0, 0, 1), 0.6),
    Part.Circle(V(-12.5, 16.5, 0), V(0, 0, 1), 0.6),
    Part.Circle(V(-12.5, 19, 0), V(0, 0, 1), 0.6),
    Part.Circle(V(12.5, 19, 0), V(0, 0, 1), 0.6),
    Part.Circle(V(12.5, 16.5, 0), V(0, 0, 1), 0.6),
    Part.Circle(V(12.5, 13.9, 0), V(0, 0, 1), 0.6),
    Part.Circle(V(12.5, 11.4, 0), V(0, 0, 1), 0.6),
    Part.Circle(V(12.5, 8.8, 0), V(0, 0, 1), 0.6),
    Part.Circle(V(12.5, 6.3, 0), V(0, 0, 1), 0.6),
    Part.Circle(V(12.5, 3.8, 0), V(0, 0, 1), 0.6),
    Part.Circle(V(12.5, 1.2, 0), V(0, 0, 1), 0.6),
    Part.Circle(V(12.5, -1.3, 0), V(0, 0, 1), 0.6),
    Part.Circle(V(12.5, -3.9, 0), V(0, 0, 1), 0.6),
    Part.Circle(V(12.5, -6.4, 0), V(0, 0, 1), 0.6),
    Part.Circle(V(12.5, -8.9, 0), V(0, 0, 1), 0.6),
    Part.Circle(V(12.5, -11.5, 0), V(0, 0, 1), 0.6),
    Part.Circle(V(12.5, -14, 0), V(0, 0, 1), 0.6),
    Part.Circle(V(12.5, -16.6, 0), V(0, 0, 1), 0.6),
], False)
sketch9.addConstraint([
    Sketcher.Constraint("Equal", 0, 1),
    Sketcher.Constraint("Equal", 1, 2),
    Sketcher.Constraint("Equal", 2, 3),
    Sketcher.Constraint("Equal", 3, 4),
    Sketcher.Constraint("Equal", 4, 5),
    Sketcher.Constraint("Equal", 5, 6),
    Sketcher.Constraint("Equal", 6, 7),
    Sketcher.Constraint("Equal", 7, 8),
    Sketcher.Constraint("Equal", 8, 9),
    Sketcher.Constraint("Equal", 9, 10),
    Sketcher.Constraint("Equal", 10, 11),
    Sketcher.Constraint("Equal", 11, 12),
    Sketcher.Constraint("Equal", 12, 13),
    Sketcher.Constraint("Equal", 13, 14),
    Sketcher.Constraint("Equal", 14, 15),
    Sketcher.Constraint("Equal", 15, 16),
    Sketcher.Constraint("Equal", 16, 17),
    Sketcher.Constraint("Equal", 17, 18),
    Sketcher.Constraint("Equal", 18, 19),
    Sketcher.Constraint("Equal", 19, 20),
    Sketcher.Constraint("Equal", 20, 21),
    Sketcher.Constraint("Equal", 21, 22),
    Sketcher.Constraint("Equal", 22, 23),
    Sketcher.Constraint("Equal", 23, 24),
    Sketcher.Constraint("Equal", 24, 25),
    Sketcher.Constraint("Equal", 25, 26),
    Sketcher.Constraint("Equal", 26, 27),
    Sketcher.Constraint("Equal", 27, 28),
    Sketcher.Constraint("Equal", 28, 29),
    Sketcher.Constraint("Symmetric", 14, 3, 15, 3, -2),
    Sketcher.Constraint("Symmetric", 13, 3, 16, 3, -2),
    Sketcher.Constraint("Symmetric", 12, 3, 17, 3, -2),
    Sketcher.Constraint("Symmetric", 11, 3, 18, 3, -2),
    Sketcher.Constraint("Symmetric", 10, 3, 19, 3, -2),
    Sketcher.Constraint("Symmetric", 9, 3, 20, 3, -2),
    Sketcher.Constraint("Symmetric", 8, 3, 21, 3, -2),
    Sketcher.Constraint("Symmetric", 7, 3, 22, 3, -2),
    Sketcher.Constraint("Symmetric", 6, 3, 23, 3, -2),
    Sketcher.Constraint("Symmetric", 5, 3, 24, 3, -2),
    Sketcher.Constraint("Symmetric", 4, 3, 25, 3, -2),
    Sketcher.Constraint("Symmetric", 3, 3, 26, 3, -2),
    Sketcher.Constraint("Symmetric", 2, 3, 27, 3, -2),
    Sketcher.Constraint("Symmetric", 1, 3, 28, 3, -2),
    Sketcher.Constraint("Symmetric", 0, 3, 29, 3, -2),
    Sketcher.Constraint("Vertical", 0, 3, 1, 3),
    Sketcher.Constraint("Vertical", 1, 3, 2, 3),
    Sketcher.Constraint("Vertical", 2, 3, 3, 3),
    Sketcher.Constraint("Vertical", 3, 3, 4, 3),
    Sketcher.Constraint("Vertical", 4, 3, 5, 3),
    Sketcher.Constraint("Vertical", 5, 3, 6, 3),
    Sketcher.Constraint("Vertical", 6, 3, 7, 3),
    Sketcher.Constraint("Vertical", 7, 3, 8, 3),
    Sketcher.Constraint("Vertical", 8, 3, 9, 3),
    Sketcher.Constraint("Vertical", 9, 3, 10, 3),
    Sketcher.Constraint("Vertical", 10, 3, 11, 3),
    Sketcher.Constraint("Vertical", 11, 3, 12, 3),
    Sketcher.Constraint("Vertical", 12, 3, 13, 3),
    Sketcher.Constraint("Vertical", 13, 3, 14, 3),
    Sketcher.Constraint("Diameter", 0, Q("1.2 mm")),
    Sketcher.Constraint("DistanceY", -1, 1, 14, 3, Q("19 mm")),
    Sketcher.Constraint("DistanceX", 14, 3, 15, 3, Q("25 mm")),
    Sketcher.Constraint("DistanceY", 4, 3, -1, 1, Q("6.4 mm")),
    Sketcher.Constraint("DistanceY", -1, 1, 9, 3, Q("6.3 mm")),
    Sketcher.Constraint("DistanceY", 0, 3, 5, 3, Q("12.7 mm")),
    Sketcher.Constraint("DistanceY", 1, 3, 6, 3, Q("12.7 mm")),
    Sketcher.Constraint("DistanceY", 2, 3, 7, 3, Q("12.7 mm")),
    Sketcher.Constraint("DistanceY", 3, 3, 8, 3, Q("12.7 mm")),
    Sketcher.Constraint("DistanceY", 5, 3, 10, 3, Q("12.7 mm")),
    Sketcher.Constraint("DistanceY", 6, 3, 11, 3, Q("12.7 mm")),
    Sketcher.Constraint("DistanceY", 7, 3, 12, 3, Q("12.7 mm")),
    Sketcher.Constraint("DistanceY", 8, 3, 13, 3, Q("12.7 mm")),
    Sketcher.Constraint("DistanceY", 0, 3, -1, 1, Q("16.56 mm")),
    Sketcher.Constraint("DistanceY", 1, 3, -1, 1, Q("14.02 mm")),
    Sketcher.Constraint("DistanceY", 2, 3, -1, 1, Q("11.48 mm")),
    Sketcher.Constraint("DistanceY", 3, 3, -1, 1, Q("8.94 mm")),
])
pocket3 = body.newObject("PartDesign::Pocket", "Pocket002")
pocket3.Profile = sketch9
pocket3.Length = 5
pocket3.Reversed = True
doc.recompute()

fillet = body.newObject("PartDesign::Fillet", "Fillet")
fillet.Base = (pocket3, edges_at(pocket3, [
    (7.8, 3.5, 18.5),
    (7.8, 3.5, 1),
    (-7.8, 3.5, 1),
    (-7.8, 3.5, 18.5),
    (7.8, 4.5, 9.75),
    (0, 4.5, 1),
    (-7.8, 4.5, 9.75),
    (0, 4.5, 18.5),
]))
fillet.Radius = 0.5

doc.recompute()
